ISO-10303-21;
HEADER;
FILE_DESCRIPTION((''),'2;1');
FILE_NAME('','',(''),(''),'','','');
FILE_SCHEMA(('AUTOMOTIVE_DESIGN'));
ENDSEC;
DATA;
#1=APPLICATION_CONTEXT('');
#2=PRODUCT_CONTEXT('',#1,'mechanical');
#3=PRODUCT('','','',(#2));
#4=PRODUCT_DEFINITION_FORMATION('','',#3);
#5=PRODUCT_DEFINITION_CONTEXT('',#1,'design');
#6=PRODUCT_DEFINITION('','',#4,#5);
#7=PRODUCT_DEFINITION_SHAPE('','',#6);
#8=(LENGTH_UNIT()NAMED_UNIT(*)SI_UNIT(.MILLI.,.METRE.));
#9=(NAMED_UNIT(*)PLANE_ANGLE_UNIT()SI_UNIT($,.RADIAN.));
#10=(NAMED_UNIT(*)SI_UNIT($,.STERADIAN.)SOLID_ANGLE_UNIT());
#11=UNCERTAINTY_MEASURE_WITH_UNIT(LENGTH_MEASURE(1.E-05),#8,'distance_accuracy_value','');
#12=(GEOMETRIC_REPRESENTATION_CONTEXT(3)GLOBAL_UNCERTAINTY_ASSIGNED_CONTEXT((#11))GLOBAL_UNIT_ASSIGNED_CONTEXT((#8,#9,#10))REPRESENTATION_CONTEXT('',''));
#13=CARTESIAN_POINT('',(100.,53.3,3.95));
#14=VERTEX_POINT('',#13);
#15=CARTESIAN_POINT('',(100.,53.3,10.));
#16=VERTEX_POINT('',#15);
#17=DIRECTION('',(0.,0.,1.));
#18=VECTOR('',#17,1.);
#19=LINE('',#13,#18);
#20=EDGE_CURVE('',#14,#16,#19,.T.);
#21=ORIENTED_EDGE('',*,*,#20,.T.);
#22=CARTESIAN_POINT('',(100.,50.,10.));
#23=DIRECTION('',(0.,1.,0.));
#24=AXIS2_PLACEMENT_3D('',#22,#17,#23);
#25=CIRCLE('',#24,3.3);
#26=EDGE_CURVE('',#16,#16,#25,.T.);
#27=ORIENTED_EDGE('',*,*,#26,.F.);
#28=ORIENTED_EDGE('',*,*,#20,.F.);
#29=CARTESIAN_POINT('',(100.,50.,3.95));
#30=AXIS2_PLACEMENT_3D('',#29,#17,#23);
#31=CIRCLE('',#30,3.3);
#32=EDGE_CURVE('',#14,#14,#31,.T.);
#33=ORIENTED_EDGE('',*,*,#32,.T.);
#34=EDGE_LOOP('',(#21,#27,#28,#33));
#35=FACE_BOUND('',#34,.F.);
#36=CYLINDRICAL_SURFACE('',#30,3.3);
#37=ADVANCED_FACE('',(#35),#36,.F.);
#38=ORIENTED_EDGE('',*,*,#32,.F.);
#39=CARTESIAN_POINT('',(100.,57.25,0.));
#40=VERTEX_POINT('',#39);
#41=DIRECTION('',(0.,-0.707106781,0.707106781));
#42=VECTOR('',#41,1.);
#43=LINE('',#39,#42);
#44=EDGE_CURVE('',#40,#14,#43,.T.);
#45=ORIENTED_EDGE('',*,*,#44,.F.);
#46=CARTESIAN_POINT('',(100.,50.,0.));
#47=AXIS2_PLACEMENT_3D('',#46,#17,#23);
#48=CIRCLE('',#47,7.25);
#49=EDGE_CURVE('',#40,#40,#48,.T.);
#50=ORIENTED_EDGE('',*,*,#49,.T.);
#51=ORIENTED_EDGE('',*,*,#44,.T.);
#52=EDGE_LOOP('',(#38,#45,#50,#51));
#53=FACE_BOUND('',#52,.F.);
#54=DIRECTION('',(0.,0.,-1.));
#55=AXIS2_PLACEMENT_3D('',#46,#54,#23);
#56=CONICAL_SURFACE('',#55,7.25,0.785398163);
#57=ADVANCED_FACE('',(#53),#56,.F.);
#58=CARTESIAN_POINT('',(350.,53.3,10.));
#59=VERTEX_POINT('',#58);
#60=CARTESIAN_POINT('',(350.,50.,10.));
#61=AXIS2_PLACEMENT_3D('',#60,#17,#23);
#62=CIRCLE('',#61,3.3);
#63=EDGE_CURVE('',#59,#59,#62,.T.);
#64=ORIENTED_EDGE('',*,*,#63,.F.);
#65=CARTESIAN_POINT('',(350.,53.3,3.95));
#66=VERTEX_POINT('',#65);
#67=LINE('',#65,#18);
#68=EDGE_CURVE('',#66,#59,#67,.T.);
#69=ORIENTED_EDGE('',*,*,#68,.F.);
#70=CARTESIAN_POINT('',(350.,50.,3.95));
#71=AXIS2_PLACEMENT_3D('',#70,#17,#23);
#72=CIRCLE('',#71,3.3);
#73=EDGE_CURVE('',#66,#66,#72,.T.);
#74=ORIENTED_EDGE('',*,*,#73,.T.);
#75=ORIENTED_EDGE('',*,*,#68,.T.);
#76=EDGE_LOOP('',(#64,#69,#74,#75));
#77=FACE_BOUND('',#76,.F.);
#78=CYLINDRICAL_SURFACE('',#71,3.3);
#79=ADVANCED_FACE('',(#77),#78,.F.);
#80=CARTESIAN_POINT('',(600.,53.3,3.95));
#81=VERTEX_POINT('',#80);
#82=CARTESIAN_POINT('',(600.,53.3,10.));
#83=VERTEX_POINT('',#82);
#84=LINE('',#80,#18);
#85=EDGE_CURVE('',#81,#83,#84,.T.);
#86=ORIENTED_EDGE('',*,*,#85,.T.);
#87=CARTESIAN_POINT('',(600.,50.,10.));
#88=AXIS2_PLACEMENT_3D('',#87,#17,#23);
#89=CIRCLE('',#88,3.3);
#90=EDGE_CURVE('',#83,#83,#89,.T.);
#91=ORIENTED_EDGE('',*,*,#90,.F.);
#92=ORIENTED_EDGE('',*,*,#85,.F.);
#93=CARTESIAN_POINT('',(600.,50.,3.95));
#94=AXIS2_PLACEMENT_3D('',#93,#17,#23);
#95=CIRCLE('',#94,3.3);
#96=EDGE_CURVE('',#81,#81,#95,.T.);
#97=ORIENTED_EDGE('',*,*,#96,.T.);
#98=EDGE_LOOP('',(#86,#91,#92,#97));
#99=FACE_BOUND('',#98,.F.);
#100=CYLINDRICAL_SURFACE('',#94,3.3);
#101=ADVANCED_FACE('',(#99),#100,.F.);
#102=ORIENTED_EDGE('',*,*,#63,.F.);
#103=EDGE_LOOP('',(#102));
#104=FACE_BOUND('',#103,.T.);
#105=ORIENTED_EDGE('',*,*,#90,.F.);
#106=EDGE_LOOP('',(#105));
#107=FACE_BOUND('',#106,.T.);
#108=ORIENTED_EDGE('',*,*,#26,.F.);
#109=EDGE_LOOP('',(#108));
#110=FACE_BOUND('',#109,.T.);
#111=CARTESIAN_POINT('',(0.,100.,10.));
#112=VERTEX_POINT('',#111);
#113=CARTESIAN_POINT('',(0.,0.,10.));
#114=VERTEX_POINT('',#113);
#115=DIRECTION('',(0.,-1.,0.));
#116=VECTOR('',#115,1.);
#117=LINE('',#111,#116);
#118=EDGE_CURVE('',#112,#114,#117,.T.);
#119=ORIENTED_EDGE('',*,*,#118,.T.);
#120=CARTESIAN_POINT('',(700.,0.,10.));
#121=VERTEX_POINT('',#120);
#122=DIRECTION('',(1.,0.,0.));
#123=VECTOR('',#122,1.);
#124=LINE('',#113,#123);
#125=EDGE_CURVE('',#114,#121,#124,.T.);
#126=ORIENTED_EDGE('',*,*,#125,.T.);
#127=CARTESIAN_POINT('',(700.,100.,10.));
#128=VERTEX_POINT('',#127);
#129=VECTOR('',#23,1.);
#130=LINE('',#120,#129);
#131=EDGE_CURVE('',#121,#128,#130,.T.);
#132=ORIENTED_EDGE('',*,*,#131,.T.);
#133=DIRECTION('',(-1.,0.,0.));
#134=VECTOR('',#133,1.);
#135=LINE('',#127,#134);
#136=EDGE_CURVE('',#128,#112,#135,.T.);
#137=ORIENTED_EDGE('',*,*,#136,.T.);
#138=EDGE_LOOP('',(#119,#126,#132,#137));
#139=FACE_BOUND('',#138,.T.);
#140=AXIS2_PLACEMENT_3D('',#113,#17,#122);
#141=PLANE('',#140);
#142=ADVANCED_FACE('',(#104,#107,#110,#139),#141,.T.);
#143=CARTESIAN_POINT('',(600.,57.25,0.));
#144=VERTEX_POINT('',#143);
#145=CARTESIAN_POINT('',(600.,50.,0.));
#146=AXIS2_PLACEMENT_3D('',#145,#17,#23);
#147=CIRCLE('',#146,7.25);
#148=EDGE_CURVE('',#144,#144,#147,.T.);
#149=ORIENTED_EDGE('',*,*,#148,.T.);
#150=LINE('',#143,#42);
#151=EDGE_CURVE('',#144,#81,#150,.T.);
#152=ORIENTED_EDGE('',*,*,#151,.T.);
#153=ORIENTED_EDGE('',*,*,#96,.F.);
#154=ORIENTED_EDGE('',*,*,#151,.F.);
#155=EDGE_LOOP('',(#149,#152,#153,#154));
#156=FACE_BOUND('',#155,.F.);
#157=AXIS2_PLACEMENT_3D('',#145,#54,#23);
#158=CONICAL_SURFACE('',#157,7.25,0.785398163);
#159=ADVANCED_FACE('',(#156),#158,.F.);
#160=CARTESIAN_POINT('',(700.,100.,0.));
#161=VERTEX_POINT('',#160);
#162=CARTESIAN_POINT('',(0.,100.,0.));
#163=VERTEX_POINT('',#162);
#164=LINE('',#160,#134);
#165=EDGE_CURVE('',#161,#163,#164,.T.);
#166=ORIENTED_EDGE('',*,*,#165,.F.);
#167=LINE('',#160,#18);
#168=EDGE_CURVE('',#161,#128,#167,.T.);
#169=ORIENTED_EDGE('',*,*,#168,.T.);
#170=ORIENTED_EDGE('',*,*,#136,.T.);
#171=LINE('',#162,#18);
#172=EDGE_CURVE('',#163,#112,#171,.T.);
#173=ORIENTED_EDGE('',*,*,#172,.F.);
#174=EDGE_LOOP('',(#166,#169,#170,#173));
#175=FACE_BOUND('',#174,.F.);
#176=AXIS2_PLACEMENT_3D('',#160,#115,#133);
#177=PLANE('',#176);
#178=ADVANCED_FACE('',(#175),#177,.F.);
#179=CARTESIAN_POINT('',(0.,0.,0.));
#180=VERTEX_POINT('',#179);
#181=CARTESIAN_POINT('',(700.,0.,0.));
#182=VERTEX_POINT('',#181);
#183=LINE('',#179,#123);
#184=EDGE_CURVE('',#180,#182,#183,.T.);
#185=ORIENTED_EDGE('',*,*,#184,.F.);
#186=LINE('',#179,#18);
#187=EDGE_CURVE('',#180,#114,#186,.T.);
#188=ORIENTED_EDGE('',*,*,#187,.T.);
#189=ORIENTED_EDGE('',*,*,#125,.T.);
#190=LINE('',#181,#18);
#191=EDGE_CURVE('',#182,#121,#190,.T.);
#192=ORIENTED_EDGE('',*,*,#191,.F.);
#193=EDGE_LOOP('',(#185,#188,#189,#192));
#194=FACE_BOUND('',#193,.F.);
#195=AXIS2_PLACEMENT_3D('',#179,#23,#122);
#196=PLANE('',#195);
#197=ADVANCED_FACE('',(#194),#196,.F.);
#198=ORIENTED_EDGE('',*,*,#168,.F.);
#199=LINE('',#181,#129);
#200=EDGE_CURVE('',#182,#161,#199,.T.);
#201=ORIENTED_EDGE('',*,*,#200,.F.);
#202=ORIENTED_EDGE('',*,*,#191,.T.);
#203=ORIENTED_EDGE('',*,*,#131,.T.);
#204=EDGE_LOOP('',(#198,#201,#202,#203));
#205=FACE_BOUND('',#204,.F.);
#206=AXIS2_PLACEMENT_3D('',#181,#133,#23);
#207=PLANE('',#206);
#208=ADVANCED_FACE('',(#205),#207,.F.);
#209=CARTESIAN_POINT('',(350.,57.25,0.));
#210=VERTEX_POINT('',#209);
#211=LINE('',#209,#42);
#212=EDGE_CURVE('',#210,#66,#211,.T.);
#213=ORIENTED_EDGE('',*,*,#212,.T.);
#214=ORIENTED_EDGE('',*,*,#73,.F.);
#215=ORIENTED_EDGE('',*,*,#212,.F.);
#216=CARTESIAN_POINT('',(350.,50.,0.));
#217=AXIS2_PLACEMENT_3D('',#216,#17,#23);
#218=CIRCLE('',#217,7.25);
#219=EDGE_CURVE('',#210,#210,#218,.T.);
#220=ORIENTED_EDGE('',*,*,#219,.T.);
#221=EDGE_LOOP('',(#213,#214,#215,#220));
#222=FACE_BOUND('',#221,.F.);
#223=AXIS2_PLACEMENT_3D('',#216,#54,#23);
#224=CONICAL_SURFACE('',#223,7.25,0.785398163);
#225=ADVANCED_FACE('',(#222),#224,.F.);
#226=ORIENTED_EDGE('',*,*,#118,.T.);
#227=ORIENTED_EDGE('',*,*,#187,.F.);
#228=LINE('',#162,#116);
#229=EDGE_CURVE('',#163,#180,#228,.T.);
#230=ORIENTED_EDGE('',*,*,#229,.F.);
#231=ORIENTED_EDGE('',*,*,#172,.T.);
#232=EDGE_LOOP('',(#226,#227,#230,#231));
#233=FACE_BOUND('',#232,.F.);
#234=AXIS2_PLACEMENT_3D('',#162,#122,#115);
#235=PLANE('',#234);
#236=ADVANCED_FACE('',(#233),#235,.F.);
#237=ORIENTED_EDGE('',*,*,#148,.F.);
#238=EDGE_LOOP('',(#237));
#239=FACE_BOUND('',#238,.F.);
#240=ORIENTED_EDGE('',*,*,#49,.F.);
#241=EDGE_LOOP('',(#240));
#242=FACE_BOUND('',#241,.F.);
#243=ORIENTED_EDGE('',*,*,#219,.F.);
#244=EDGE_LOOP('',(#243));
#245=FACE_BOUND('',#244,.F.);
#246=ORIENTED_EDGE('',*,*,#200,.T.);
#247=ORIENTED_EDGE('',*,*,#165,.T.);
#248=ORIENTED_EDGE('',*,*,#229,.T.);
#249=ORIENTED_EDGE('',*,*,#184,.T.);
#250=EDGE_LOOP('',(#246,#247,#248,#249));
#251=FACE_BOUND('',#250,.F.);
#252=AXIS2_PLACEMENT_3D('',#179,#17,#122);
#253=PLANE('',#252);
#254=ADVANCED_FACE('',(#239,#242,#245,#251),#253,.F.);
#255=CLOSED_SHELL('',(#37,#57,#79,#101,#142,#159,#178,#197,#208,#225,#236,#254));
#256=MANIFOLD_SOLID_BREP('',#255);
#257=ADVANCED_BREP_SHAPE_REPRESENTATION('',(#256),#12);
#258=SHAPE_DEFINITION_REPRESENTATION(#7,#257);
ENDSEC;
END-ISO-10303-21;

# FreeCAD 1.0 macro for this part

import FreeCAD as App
import Part
import Sketcher
from FreeCAD import Vector
Q = App.Units.Quantity


def add_polygon(sketch, points):
    """Adds a closed chain of lines whose ends are joined by coincident constraints."""
    first, n = sketch.GeometryCount, len(points)
    for a, b in zip(points, points[1:] + points[:1]):
        sketch.addGeometry(Part.LineSegment(App.Vector(*a, 0), App.Vector(*b, 0)), False)
    for i in range(n):
        sketch.addConstraint(Sketcher.Constraint("Coincident", first + i, 2, first + (i + 1) % n, 1))

doc = App.newDocument("Part")
body = doc.addObject("PartDesign::Body", "Body")

# Sketch on XY plane
sketch1 = body.newObject("Sketcher::SketchObject", "Sketch")
sketch1.AttachmentSupport = (doc.getObject("XY_Plane"), [""])
sketch1.MapMode = "FlatFace"
add_polygon(sketch1, [(0, 100), (0, 0), (700, 0), (700, 100)])  # lines 0-3
sketch1.addConstraint([
    Sketcher.Constraint("Vertical", 0),
    Sketcher.Constraint("Horizontal", 1),
    Sketcher.Constraint("Vertical", 2),
    Sketcher.Constraint("Horizontal", 3),
    Sketcher.Constraint("Coincident", 0, 2, -1, 1),
    Sketcher.Constraint("DistanceX", 1, 1, 1, 2, Q("700 mm")),
    Sketcher.Constraint("DistanceY", 0, 2, 0, 1, Q("100 mm")),
])
pad1 = body.newObject("PartDesign::Pad", "Pad")
pad1.Profile = sketch1
pad1.Length = 10

# Sketch on XY plane
sketch2 = body.newObject("Sketcher::SketchObject", "Sketch001")
sketch2.AttachmentSupport = (doc.getObject("XY_Plane"), [""])
sketch2.MapMode = "FlatFace"
sketch2.addGeometry([
    Part.Circle(Vector(100, 50, 0), Vector(0, 0, 1), 3.3),
    Part.Circle(Vector(350, 50, 0), Vector(0, 0, 1), 3.3),
    Part.Circle(Vector(600, 50, 0), Vector(0, 0, 1), 3.3),
], False)
sketch2.addConstraint([
    Sketcher.Constraint("Equal", 0, 1),
    Sketcher.Constraint("Equal", 1, 2),
    Sketcher.Constraint("Horizontal", 0, 3, 1, 3),
    Sketcher.Constraint("Horizontal", 1, 3, 2, 3),
    Sketcher.Constraint("Diameter", 0, Q("6.6 mm")),
    Sketcher.Constraint("DistanceX", -1, 1, 0, 3, Q("100 mm")),
    Sketcher.Constraint("DistanceY", -1, 1, 0, 3, Q("50 mm")),
    Sketcher.Constraint("DistanceX", -1, 1, 1, 3, Q("350 mm")),
    Sketcher.Constraint("DistanceX", -1, 1, 2, 3, Q("600 mm")),
])
doc.recompute()
hole = body.newObject("PartDesign::Hole", "Hole")
hole.Profile = sketch2
hole.ThreadType = "None"
hole.Diameter = 6.6
hole.DepthType = "ThroughAll"
hole.HoleCutType = "Countersink"
hole.HoleCutDiameter = 14.5
hole.HoleCutCountersinkAngle = 90
hole.Reversed = True

doc.recompute()
